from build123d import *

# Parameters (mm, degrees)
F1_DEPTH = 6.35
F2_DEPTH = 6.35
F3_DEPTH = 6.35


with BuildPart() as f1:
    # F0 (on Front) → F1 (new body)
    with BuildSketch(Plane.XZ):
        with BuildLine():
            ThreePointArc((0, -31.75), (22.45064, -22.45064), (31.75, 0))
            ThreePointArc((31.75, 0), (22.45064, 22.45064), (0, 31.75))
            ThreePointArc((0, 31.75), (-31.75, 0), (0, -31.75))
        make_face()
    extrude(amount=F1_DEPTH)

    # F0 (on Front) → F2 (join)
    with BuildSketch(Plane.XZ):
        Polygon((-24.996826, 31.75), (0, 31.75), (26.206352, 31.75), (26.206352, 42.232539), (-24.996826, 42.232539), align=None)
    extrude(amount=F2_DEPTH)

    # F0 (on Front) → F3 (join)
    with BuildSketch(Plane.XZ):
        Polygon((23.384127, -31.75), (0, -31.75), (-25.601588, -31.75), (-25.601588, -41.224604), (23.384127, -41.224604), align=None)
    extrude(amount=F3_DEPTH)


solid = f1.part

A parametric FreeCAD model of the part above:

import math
import FreeCAD as App
import Part
import Sketcher
from FreeCAD import Vector
Q = App.Units.Quantity

doc = App.newDocument("Part")
params = doc.addObject("Spreadsheet::Sheet", "Params")
for row, (alias, value) in enumerate([
    ("sketch1_radius", "1.25 in"),
    ("pad1_length", "0.25 in"),
    ("pad2_length", "0.25 in"),
    ("pad3_length", "0.25 in"),
], start=1):
    params.set(f"A{row}", alias)
    params.set(f"B{row}", "=" + value)
    params.setAlias(f"B{row}", alias)

body = doc.addObject("PartDesign::Body", "Body")
body.AllowCompound = True

# Sketch on XZ plane
sketch1 = doc.addObject("Sketcher::SketchObject", "Sketch")
body.addObject(sketch1)
sketch1.AttachmentSupport = (doc.XZ_Plane, [""])
sketch1.MapMode = "FlatFace"
sketch1.addGeometry([
    Part.ArcOfCircle(Part.Circle(Vector(0, 0, 0), Vector(0, 0, 1), 32), math.radians(-90), math.radians(0)),
    Part.ArcOfCircle(Part.Circle(Vector(0, 0, 0), Vector(0, 0, 1), 32), math.radians(0), math.radians(90)),
    Part.ArcOfCircle(Part.Circle(Vector(0, 0, 0), Vector(0, 0, 1), 32), math.radians(90), math.radians(270)),
], False)
sketch1.addConstraint([
    Sketcher.Constraint("Tangent", 0, 2, 1, 1),
    Sketcher.Constraint("Tangent", 1, 2, 2, 1),
    Sketcher.Constraint("Tangent", 2, 2, 0, 1),
    Sketcher.Constraint("Coincident", 0, 3, -1, 1),
    Sketcher.Constraint("PointOnObject", 0, 2, -1),
    Sketcher.Constraint("PointOnObject", 1, 2, -2),
    Sketcher.Constraint("PointOnObject", 2, 2, -2),
    Sketcher.Constraint("Radius", 0, Q("1.25 in")),
])
sketch1.setExpression("Constraints[7]", "Params.sketch1_radius")
pad1 = doc.addObject("PartDesign::Pad", "Pad")
body.addObject(pad1)
pad1.Profile = sketch1
pad1.setExpression("Length", "Params.pad1_length")

# Sketch on XZ plane
sketch2 = doc.addObject("Sketcher::SketchObject", "Sketch001")
body.addObject(sketch2)
sketch2.AttachmentSupport = (doc.XZ_Plane, [""])
sketch2.MapMode = "FlatFace"
sketch2.addGeometry([
    Part.LineSegment(Vector(-25, 32, 0), Vector(26, 32, 0)),
    Part.LineSegment(Vector(26, 32, 0), Vector(26, 42, 0)),
    Part.LineSegment(Vector(26, 42, 0), Vector(-25, 42, 0)),
    Part.LineSegment(Vector(-25, 42, 0), Vector(-25, 32, 0)),
], False)
sketch2.addConstraint([
    Sketcher.Constraint("Coincident", 0, 2, 1, 1),
    Sketcher.Constraint("Coincident", 1, 2, 2, 1),
    Sketcher.Constraint("Coincident", 2, 2, 3, 1),
    Sketcher.Constraint("Coincident", 3, 2, 0, 1),
    Sketcher.Constraint("Horizontal", 0),
    Sketcher.Constraint("Vertical", 1),
    Sketcher.Constraint("Horizontal", 2),
    Sketcher.Constraint("Vertical", 3),
    Sketcher.Constraint("DistanceY", -1, 1, 0, 2, Q("1.25 in")),
    Sketcher.Constraint("DistanceY", 1, 1, 1, 2, 10.482539),
    Sketcher.Constraint("DistanceX", 0, 1, 0, 2, 51.203178),
    Sketcher.Constraint("DistanceX", -1, 1, 0, 2, 26.206352),
])
pad2 = doc.addObject("PartDesign::Pad", "Pad001")
body.addObject(pad2)
pad2.Profile = sketch2
pad2.setExpression("Length", "Params.pad2_length")

# Sketch on XZ plane
sketch3 = doc.addObject("Sketcher::SketchObject", "Sketch002")
body.addObject(sketch3)
sketch3.AttachmentSupport = (doc.XZ_Plane, [""])
sketch3.MapMode = "FlatFace"
sketch3.addGeometry([
    Part.LineSegment(Vector(23, -32, 0), Vector(-26, -32, 0)),
    Part.LineSegment(Vector(-26, -32, 0), Vector(-26, -41, 0)),
    Part.LineSegment(Vector(-26, -41, 0), Vector(23, -41, 0)),
    Part.LineSegment(Vector(23, -41, 0), Vector(23, -32, 0)),
], False)
sketch3.addConstraint([
    Sketcher.Constraint("Coincident", 0, 2, 1, 1),
    Sketcher.Constraint("Coincident", 1, 2, 2, 1),
    Sketcher.Constraint("Coincident", 2, 2, 3, 1),
    Sketcher.Constraint("Coincident", 3, 2, 0, 1),
    Sketcher.Constraint("Horizontal", 0),
    Sketcher.Constraint("Vertical", 1),
    Sketcher.Constraint("Horizontal", 2),
    Sketcher.Constraint("Vertical", 3),
    Sketcher.Constraint("DistanceY", 0, 2, -1, 1, Q("1.25 in")),
    Sketcher.Constraint("DistanceX", 0, 2, 0, 1, 48.985715),
    Sketcher.Constraint("DistanceY", 1, 2, 1, 1, 9.474604),
    Sketcher.Constraint("DistanceX", 0, 2, -1, 1, 25.601588),
])
pad3 = doc.addObject("PartDesign::Pad", "Pad002")
body.addObject(pad3)
pad3.Profile = sketch3
pad3.setExpression("Length", "Params.pad3_length")

doc.recompute()
